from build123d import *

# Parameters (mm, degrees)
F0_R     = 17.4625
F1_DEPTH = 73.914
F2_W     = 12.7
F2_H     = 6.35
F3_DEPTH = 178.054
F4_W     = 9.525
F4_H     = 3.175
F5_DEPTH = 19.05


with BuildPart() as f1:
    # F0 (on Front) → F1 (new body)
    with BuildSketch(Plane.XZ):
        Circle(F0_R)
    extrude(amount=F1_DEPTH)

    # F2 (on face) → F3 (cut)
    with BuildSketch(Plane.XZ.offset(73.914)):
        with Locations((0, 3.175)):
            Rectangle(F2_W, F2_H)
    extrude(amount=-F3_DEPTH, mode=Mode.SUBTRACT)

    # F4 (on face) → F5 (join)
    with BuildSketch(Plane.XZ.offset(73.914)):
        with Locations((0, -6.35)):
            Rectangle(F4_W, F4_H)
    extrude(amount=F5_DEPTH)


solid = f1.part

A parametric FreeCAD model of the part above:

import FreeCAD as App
import Part
import Sketcher
Q = App.Units.Quantity


def add_polygon(sketch, points):
    """Adds a closed chain of lines whose ends are joined by coincident constraints."""
    first, n = sketch.GeometryCount, len(points)
    for a, b in zip(points, points[1:] + points[:1]):
        sketch.addGeometry(Part.LineSegment(App.Vector(*a, 0), App.Vector(*b, 0)), False)
    for i in range(n):
        sketch.addConstraint(Sketcher.Constraint("Coincident", first + i, 2, first + (i + 1) % n, 1))

doc = App.newDocument("Part")
params = doc.addObject("Spreadsheet::Sheet", "Params")
for row, (alias, value) in enumerate([
    ("sketch1_diameter", "1.375 in"),
    ("pad1_length", "2.91 in"),
    ("sketch2_width", "0.5 in"),
    ("sketch2_height", "0.25 in"),
    ("pocket1_length", "7.01 in"),
    ("sketch3_width", "0.375 in"),
    ("sketch3_height", "0.125 in"),
    ("pad2_length", "0.75 in"),
], start=1):
    params.set(f"A{row}", alias)
    params.set(f"B{row}", "=" + value)
    params.setAlias(f"B{row}", alias)

body = doc.addObject("PartDesign::Body", "Body")

sketch1 = body.newObject("Sketcher::SketchObject", "Sketch")
sketch1.AttachmentSupport = (doc.getObject("XZ_Plane"), [""])
sketch1.MapMode = "FlatFace"
sketch1.addGeometry(Part.Circle(App.Vector(0, 0, 0), App.Vector(0, 0, 1), 17), False)
sketch1.addConstraint(Sketcher.Constraint("Coincident", 0, 3, -1, 1))
sketch1.addConstraint(Sketcher.Constraint("Diameter", 0, Q("1.375 in")))
sketch1.setExpression("Constraints[1]", "Params.sketch1_diameter")
pad1 = body.newObject("PartDesign::Pad", "Pad")
pad1.Profile = sketch1
pad1.setExpression("Length", "Params.pad1_length")

sketch2 = body.newObject("Sketcher::SketchObject", "Sketch001")
sketch2.AttachmentSupport = (doc.getObject("XZ_Plane"), [""])
sketch2.MapMode = "FlatFace"
sketch2.AttachmentOffset = App.Placement(App.Vector(0, 0, 2.91 * 25.4), App.Rotation())
add_polygon(sketch2, [(-6, 6), (-6, 0), (6, 0), (6, 6)])
sketch2.addConstraint(Sketcher.Constraint("Vertical", 0))
sketch2.addConstraint(Sketcher.Constraint("Horizontal", 1))
sketch2.addConstraint(Sketcher.Constraint("Vertical", 2))
sketch2.addConstraint(Sketcher.Constraint("Horizontal", 3))
sketch2.addConstraint(Sketcher.Constraint("Symmetric", 0, 2, 1, 2, -1, 1))
sketch2.addConstraint(Sketcher.Constraint("DistanceX", 1, 1, 1, 2, Q("0.5 in")))
sketch2.addConstraint(Sketcher.Constraint("DistanceY", 0, 2, 0, 1, Q("0.25 in")))
sketch2.setExpression("Constraints[9]", "Params.sketch2_width")
sketch2.setExpression("Constraints[10]", "Params.sketch2_height")
pocket1 = body.newObject("PartDesign::Pocket", "Pocket")
pocket1.Profile = sketch2
pocket1.setExpression("Length", "Params.pocket1_length")

sketch3 = body.newObject("Sketcher::SketchObject", "Sketch002")
sketch3.AttachmentSupport = (doc.getObject("XZ_Plane"), [""])
sketch3.MapMode = "FlatFace"
sketch3.AttachmentOffset = App.Placement(App.Vector(0, 0, 2.91 * 25.4), App.Rotation())
add_polygon(sketch3, [(-4.8, -4.8), (-4.8, -7.9), (4.8, -7.9), (4.8, -4.8)])
sketch3.addConstraint(Sketcher.Constraint("Vertical", 0))
sketch3.addConstraint(Sketcher.Constraint("Horizontal", 1))
sketch3.addConstraint(Sketcher.Constraint("Vertical", 2))
sketch3.addConstraint(Sketcher.Constraint("Horizontal", 3))
sketch3.addConstraint(Sketcher.Constraint("DistanceX", 1, 1, 1, 2, Q("0.375 in")))
sketch3.addConstraint(Sketcher.Constraint("DistanceY", 0, 2, 0, 1, Q("0.125 in")))
sketch3.addConstraint(Sketcher.Constraint("DistanceX", 0, 2, -1, 1, Q("0.1875 in")))
sketch3.addConstraint(Sketcher.Constraint("DistanceY", 0, 2, -1, 1, Q("0.3125 in")))
sketch3.setExpression("Constraints[8]", "Params.sketch3_width")
sketch3.setExpression("Constraints[9]", "Params.sketch3_height")
pad2 = body.newObject("PartDesign::Pad", "Pad001")
pad2.Profile = sketch3
pad2.setExpression("Length", "Params.pad2_length")

doc.recompute()
